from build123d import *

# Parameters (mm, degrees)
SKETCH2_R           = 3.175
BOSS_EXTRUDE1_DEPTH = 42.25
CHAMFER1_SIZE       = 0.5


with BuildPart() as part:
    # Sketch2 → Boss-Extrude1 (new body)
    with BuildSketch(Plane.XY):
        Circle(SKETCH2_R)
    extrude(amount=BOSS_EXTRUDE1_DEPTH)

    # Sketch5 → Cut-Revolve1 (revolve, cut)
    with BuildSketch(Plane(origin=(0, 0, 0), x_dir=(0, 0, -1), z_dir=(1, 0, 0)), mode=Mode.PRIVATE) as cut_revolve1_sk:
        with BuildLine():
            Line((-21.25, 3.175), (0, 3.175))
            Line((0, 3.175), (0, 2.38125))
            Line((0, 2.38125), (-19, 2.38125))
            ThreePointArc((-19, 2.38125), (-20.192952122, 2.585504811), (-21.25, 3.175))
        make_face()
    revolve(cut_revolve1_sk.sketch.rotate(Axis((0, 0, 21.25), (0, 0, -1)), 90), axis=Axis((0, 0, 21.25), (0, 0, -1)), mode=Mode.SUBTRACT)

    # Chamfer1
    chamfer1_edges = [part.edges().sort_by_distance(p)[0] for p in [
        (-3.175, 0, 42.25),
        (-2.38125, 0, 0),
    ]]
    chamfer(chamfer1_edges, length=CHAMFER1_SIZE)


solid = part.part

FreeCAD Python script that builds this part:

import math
import FreeCAD as App
import Part
import Sketcher
from FreeCAD import Vector
Q = App.Units.Quantity


def edges_at(feature, points):
    """Names of the edges that pass closest to the given points."""
    edges = feature.Shape.Edges
    near = lambda p: min(range(len(edges)), key=lambda i: edges[i].distToShape(Part.Vertex(*p))[0])
    return sorted({f"Edge{near(p) + 1}" for p in points})

doc = App.newDocument("Part")
body = doc.addObject("PartDesign::Body", "Body")

# Sketch on XY plane
sketch1 = doc.addObject("Sketcher::SketchObject", "Sketch")
body.addObject(sketch1)
sketch1.AttachmentSupport = (doc.XY_Plane, [""])
sketch1.MapMode = "FlatFace"
sketch1.addGeometry(Part.Circle(Vector(0, 0, 0), Vector(0, 0, 1), 3.175), False)
sketch1.addConstraint([
    Sketcher.Constraint("Coincident", 0, 3, -1, 1),
    Sketcher.Constraint("Diameter", 0, Q("6.35 mm")),
])
pad1 = doc.addObject("PartDesign::Pad", "Pad")
body.addObject(pad1)
pad1.Profile = sketch1
pad1.Length = 42.25

# Sketch on YZ plane
sketch2 = doc.addObject("Sketcher::SketchObject", "Sketch001")
body.addObject(sketch2)
sketch2.AttachmentSupport = (doc.YZ_Plane, [""])
sketch2.MapMode = "FlatFace"
sketch2.addGeometry([
    Part.LineSegment(Vector(3.175, 0, 0), Vector(3.175, 21.25, 0)),
    Part.ArcOfCircle(Part.Circle(Vector(5.967101, 19, 0), Vector(0, 0, 1), 3.585851), math.radians(141.136581), math.radians(180)),
    Part.LineSegment(Vector(2.38125, 19, 0), Vector(2.38125, 0, 0)),
    Part.LineSegment(Vector(2.38125, 0, 0), Vector(3.175, 0, 0)),
], False)
sketch2.addConstraint([
    Sketcher.Constraint("Coincident", 0, 2, 1, 1),
    Sketcher.Constraint("Tangent", 1, 2, 2, 1),
    Sketcher.Constraint("Coincident", 2, 2, 3, 1),
    Sketcher.Constraint("Coincident", 3, 2, 0, 1),
    Sketcher.Constraint("Vertical", 0),
    Sketcher.Constraint("Vertical", 2),
    Sketcher.Constraint("Horizontal", 3),
    Sketcher.Constraint("PointOnObject", 2, 2, -1),
    Sketcher.Constraint("DistanceY", 2, 2, 2, 1, Q("19 mm")),
    Sketcher.Constraint("DistanceY", 0, 1, 0, 2, Q("21.25 mm")),
    Sketcher.Constraint("Radius", 1, Q("3.585851 mm")),
    Sketcher.Constraint("DistanceX", -1, 1, 0, 2, Q("3.175 mm")),
])
groove = doc.addObject("PartDesign::Groove", "Groove")
body.addObject(groove)
groove.Profile = sketch2
groove.ReferenceAxis = (sketch2, ["V_Axis"])
groove.Angle = 360
doc.recompute()

chamfer = doc.addObject("PartDesign::Chamfer", "Chamfer")
body.addObject(chamfer)
chamfer.Base = (groove, edges_at(groove, [(-3.175, 0, 42.25), (-2.381, 0, 0)]))
chamfer.Size = 0.5

doc.recompute()
